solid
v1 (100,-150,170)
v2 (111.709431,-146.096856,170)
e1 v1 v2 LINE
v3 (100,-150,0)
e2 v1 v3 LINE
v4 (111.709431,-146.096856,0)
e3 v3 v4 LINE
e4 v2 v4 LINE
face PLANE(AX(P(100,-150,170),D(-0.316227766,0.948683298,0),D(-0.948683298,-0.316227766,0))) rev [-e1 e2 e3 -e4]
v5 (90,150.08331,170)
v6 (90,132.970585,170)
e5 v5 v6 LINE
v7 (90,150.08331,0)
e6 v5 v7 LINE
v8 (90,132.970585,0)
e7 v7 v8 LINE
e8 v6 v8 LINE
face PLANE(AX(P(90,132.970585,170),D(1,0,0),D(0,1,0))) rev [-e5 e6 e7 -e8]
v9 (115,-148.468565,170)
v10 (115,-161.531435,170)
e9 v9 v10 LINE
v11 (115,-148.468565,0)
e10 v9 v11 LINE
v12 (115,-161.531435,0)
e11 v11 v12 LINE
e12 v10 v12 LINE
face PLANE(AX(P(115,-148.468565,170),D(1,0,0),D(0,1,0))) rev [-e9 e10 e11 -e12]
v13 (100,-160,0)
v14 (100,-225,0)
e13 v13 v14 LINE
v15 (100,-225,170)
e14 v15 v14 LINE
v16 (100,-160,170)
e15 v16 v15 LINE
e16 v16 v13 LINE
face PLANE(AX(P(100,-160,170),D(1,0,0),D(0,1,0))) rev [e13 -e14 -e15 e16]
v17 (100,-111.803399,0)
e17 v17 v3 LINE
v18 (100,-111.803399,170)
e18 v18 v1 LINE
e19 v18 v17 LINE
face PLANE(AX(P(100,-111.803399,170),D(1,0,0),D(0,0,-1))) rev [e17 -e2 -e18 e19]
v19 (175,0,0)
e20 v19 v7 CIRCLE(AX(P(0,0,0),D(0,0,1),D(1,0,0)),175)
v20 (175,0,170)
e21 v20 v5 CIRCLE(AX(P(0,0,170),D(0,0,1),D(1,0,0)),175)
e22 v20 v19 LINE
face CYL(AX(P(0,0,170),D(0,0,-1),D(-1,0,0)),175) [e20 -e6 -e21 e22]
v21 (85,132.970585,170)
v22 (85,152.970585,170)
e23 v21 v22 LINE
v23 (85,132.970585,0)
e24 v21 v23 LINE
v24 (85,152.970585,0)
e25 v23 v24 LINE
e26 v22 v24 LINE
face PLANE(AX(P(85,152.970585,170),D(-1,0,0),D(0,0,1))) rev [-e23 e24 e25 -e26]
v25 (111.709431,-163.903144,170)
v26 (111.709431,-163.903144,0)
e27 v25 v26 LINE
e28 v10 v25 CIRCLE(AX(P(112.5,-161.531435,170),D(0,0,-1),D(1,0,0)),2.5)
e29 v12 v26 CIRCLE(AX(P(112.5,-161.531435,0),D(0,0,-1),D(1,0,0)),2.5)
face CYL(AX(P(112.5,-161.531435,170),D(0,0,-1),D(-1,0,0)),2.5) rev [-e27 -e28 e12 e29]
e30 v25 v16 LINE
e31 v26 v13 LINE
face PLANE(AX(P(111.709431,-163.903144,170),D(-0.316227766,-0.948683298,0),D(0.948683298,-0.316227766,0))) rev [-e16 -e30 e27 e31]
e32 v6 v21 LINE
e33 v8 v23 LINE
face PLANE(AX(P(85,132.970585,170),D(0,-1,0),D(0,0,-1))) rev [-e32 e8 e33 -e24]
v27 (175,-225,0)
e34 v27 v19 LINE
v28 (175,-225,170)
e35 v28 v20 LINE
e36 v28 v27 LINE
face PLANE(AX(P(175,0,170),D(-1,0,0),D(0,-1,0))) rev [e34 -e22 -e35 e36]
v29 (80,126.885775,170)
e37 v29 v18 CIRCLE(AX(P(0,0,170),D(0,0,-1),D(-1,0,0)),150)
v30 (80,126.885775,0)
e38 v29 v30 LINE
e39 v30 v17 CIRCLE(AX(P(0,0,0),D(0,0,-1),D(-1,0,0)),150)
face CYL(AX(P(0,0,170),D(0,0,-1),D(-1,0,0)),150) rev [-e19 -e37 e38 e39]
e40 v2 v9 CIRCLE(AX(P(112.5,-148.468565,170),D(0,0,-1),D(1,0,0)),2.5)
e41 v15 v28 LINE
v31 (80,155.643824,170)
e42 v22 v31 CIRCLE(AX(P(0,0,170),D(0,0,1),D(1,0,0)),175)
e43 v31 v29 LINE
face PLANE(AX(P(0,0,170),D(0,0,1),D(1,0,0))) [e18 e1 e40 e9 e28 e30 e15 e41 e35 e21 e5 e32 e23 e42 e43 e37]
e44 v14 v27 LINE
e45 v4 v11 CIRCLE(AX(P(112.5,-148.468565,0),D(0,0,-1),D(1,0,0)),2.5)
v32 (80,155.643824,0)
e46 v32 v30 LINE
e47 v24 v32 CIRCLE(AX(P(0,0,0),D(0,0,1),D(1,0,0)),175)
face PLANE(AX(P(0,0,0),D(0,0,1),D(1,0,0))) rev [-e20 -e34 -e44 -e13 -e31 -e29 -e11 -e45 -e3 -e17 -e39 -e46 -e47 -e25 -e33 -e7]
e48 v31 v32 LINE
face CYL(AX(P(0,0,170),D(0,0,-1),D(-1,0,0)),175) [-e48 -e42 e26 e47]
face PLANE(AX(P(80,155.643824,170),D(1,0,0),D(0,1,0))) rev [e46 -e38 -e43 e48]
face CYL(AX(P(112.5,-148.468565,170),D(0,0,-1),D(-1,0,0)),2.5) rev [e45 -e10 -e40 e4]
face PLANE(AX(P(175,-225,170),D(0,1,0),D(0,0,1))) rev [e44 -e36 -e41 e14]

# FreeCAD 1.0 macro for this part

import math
import FreeCAD as App
import Part
import Sketcher

V = App.Vector
Q = App.Units.Quantity

doc = App.newDocument("Part")
params = doc.addObject("Spreadsheet::Sheet", "Params")
for row, (alias, value) in enumerate([
    ("sketch1_radius", "175 mm"),
    ("sketch1_radius2", "150 mm"),
    ("sketch1_radius3", "2.5 mm"),
    ("sketch1_width", "75 mm"),
    ("sketch1_width2", "5 mm"),
    ("pad1_length", "170 mm"),
], start=1):
    params.set(f"A{row}", alias)
    params.set(f"B{row}", "=" + value)
    params.setAlias(f"B{row}", alias)

body = doc.addObject("PartDesign::Body", "Body")

# Sketch on XY plane
sketch1 = body.newObject("Sketcher::SketchObject", "Sketch")
sketch1.AttachmentSupport = (doc.getObject("XY_Plane"), [""])
sketch1.MapMode = "FlatFace"
sketch1.addGeometry(Part.LineSegment(V(100, -111.8, 0), V(100, -150, 0)), False)
sketch1.addGeometry(Part.LineSegment(V(100, -150, 0), V(111.7, -146.1, 0)), False)
sketch1.addGeometry(Part.ArcOfCircle(Part.Circle(V(112.5, -148.5, 0), V(0, 0, 1), 2.5), math.radians(0), math.radians(108)), False)
sketch1.addGeometry(Part.LineSegment(V(115, -148.5, 0), V(115, -161.5, 0)), False)
sketch1.addGeometry(Part.ArcOfCircle(Part.Circle(V(112.5, -161.5, 0), V(0, 0, 1), 2.5), math.radians(-108), math.radians(0)), False)
sketch1.addGeometry(Part.LineSegment(V(111.7, -163.9, 0), V(100, -160, 0)), False)
sketch1.addGeometry(Part.LineSegment(V(100, -160, 0), V(100, -225, 0)), False)
sketch1.addGeometry(Part.LineSegment(V(100, -225, 0), V(175, -225, 0)), False)
sketch1.addGeometry(Part.LineSegment(V(175, -225, 0), V(175, 0, 0)), False)
sketch1.addGeometry(Part.ArcOfCircle(Part.Circle(V(0, 0, 0), V(0, 0, 1), 175), math.radians(0), math.radians(59)), False)
sketch1.addGeometry(Part.LineSegment(V(90, 150.1, 0), V(90, 133, 0)), False)
sketch1.addGeometry(Part.LineSegment(V(90, 133, 0), V(85, 133, 0)), False)
sketch1.addGeometry(Part.LineSegment(V(85, 133, 0), V(85, 153, 0)), False)
sketch1.addGeometry(Part.ArcOfCircle(Part.Circle(V(0, 0, 0), V(0, 0, 1), 175), math.radians(60.94), math.radians(62.8)), False)
sketch1.addGeometry(Part.LineSegment(V(80, 155.6, 0), V(80, 126.9, 0)), False)
sketch1.addGeometry(Part.ArcOfCircle(Part.Circle(V(0, 0, 0), V(0, 0, 1), 150), math.radians(-48), math.radians(58)), False)
sketch1.addConstraint(Sketcher.Constraint("Coincident", 0, 2, 1, 1))
sketch1.addConstraint(Sketcher.Constraint("Tangent", 1, 2, 2, 2))
sketch1.addConstraint(Sketcher.Constraint("Tangent", 2, 1, 3, 1))
sketch1.addConstraint(Sketcher.Constraint("Tangent", 3, 2, 4, 2))
sketch1.addConstraint(Sketcher.Constraint("Tangent", 4, 1, 5, 1))
sketch1.addConstraint(Sketcher.Constraint("Coincident", 5, 2, 6, 1))
sketch1.addConstraint(Sketcher.Constraint("Coincident", 6, 2, 7, 1))
sketch1.addConstraint(Sketcher.Constraint("Coincident", 7, 2, 8, 1))
sketch1.addConstraint(Sketcher.Constraint("Tangent", 8, 2, 9, 1))
sketch1.addConstraint(Sketcher.Constraint("Coincident", 9, 2, 10, 1))
sketch1.addConstraint(Sketcher.Constraint("Coincident", 10, 2, 11, 1))
sketch1.addConstraint(Sketcher.Constraint("Coincident", 11, 2, 12, 1))
sketch1.addConstraint(Sketcher.Constraint("Coincident", 12, 2, 13, 1))
sketch1.addConstraint(Sketcher.Constraint("Coincident", 13, 2, 14, 1))
sketch1.addConstraint(Sketcher.Constraint("Coincident", 14, 2, 15, 2))
sketch1.addConstraint(Sketcher.Constraint("Coincident", 15, 1, 0, 1))
sketch1.addConstraint(Sketcher.Constraint("Vertical", 0))
sketch1.addConstraint(Sketcher.Constraint("Vertical", 3))
sketch1.addConstraint(Sketcher.Constraint("Vertical", 6))
sketch1.addConstraint(Sketcher.Constraint("Horizontal", 7))
sketch1.addConstraint(Sketcher.Constraint("Vertical", 8))
sketch1.addConstraint(Sketcher.Constraint("Vertical", 10))
sketch1.addConstraint(Sketcher.Constraint("Horizontal", 11))
sketch1.addConstraint(Sketcher.Constraint("Vertical", 12))
sketch1.addConstraint(Sketcher.Constraint("Vertical", 14))
sketch1.addConstraint(Sketcher.Constraint("Coincident", 9, 3, -1, 1))
sketch1.addConstraint(Sketcher.Constraint("Coincident", 13, 3, -1, 1))
sketch1.addConstraint(Sketcher.Constraint("Coincident", 15, 3, -1, 1))
sketch1.addConstraint(Sketcher.Constraint("Equal", 2, 4))
sketch1.addConstraint(Sketcher.Constraint("Equal", 9, 13))
sketch1.addConstraint(Sketcher.Constraint("Vertical", 1, 2, 4, 1))
sketch1.addConstraint(Sketcher.Constraint("Vertical", 0, 2, 5, 2))
sketch1.addConstraint(Sketcher.Constraint("Radius", 9, Q("175 mm")))
sketch1.addConstraint(Sketcher.Constraint("Radius", 15, Q("150 mm")))
sketch1.addConstraint(Sketcher.Constraint("Radius", 2, Q("2.5 mm")))
sketch1.addConstraint(Sketcher.Constraint("DistanceX", 7, 1, 7, 2, Q("75 mm")))
sketch1.addConstraint(Sketcher.Constraint("DistanceX", 11, 2, 11, 1, Q("5 mm")))
sketch1.addConstraint(Sketcher.Constraint("DistanceY", 6, 2, 6, 1, Q("65 mm")))
sketch1.addConstraint(Sketcher.Constraint("DistanceY", 8, 1, 8, 2, Q("225 mm")))
sketch1.addConstraint(Sketcher.Constraint("DistanceY", 12, 1, 12, 2, Q("20 mm")))
sketch1.addConstraint(Sketcher.Constraint("DistanceY", 0, 2, -1, 1, Q("150 mm")))
sketch1.addConstraint(Sketcher.Constraint("DistanceX", -1, 1, 2, 1, Q("115 mm")))
sketch1.addConstraint(Sketcher.Constraint("DistanceX", -1, 1, 9, 2, Q("90 mm")))
sketch1.addConstraint(Sketcher.Constraint("DistanceX", -1, 1, 13, 2, Q("80 mm")))
sketch1.addConstraint(Sketcher.Constraint("DistanceY", 3, 2, 3, 1, Q("13.062871 mm")))
sketch1.setExpression("Constraints[32]", "Params.sketch1_radius")
sketch1.setExpression("Constraints[33]", "Params.sketch1_radius2")
sketch1.setExpression("Constraints[34]", "Params.sketch1_radius3")
sketch1.setExpression("Constraints[35]", "Params.sketch1_width")
sketch1.setExpression("Constraints[36]", "Params.sketch1_width2")
pad1 = body.newObject("PartDesign::Pad", "Pad")
pad1.Profile = sketch1
pad1.setExpression("Length", "Params.pad1_length")

doc.recompute()
